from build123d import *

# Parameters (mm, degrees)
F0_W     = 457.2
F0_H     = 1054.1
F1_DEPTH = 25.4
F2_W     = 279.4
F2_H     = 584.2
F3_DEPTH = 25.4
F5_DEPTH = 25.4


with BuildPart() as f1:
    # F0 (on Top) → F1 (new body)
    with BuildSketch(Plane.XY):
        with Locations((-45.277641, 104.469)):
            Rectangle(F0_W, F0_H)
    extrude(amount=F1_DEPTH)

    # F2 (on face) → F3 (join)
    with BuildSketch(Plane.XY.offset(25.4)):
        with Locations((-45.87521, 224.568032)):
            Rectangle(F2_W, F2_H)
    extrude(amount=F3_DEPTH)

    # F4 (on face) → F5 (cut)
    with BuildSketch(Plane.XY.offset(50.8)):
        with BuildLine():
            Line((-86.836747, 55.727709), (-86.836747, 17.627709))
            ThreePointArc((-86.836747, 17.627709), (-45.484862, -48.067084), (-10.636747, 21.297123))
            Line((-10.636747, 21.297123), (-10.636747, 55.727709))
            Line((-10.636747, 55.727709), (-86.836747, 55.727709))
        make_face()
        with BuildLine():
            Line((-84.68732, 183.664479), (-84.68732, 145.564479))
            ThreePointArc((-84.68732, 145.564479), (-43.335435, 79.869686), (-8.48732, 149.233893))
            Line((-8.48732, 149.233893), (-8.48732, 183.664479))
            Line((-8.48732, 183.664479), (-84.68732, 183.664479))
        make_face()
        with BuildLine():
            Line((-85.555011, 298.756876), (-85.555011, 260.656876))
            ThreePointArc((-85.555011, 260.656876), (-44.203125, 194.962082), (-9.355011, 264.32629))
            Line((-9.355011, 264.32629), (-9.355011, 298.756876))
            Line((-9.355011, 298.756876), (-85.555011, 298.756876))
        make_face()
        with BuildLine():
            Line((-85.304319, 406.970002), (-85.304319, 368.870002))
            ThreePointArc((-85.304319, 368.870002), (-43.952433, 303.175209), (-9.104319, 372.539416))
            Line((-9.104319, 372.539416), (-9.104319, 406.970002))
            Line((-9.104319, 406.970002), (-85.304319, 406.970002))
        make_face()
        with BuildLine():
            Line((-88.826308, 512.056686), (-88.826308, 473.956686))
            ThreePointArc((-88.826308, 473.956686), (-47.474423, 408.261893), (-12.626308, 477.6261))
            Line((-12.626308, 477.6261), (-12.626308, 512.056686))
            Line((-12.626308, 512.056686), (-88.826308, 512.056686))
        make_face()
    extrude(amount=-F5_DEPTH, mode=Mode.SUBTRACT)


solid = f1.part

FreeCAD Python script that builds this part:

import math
import FreeCAD as App
import Part
import Sketcher
Q = App.Units.Quantity


def add_polygon(sketch, points):
    """Adds a closed chain of lines whose ends are joined by coincident constraints."""
    first, n = sketch.GeometryCount, len(points)
    for a, b in zip(points, points[1:] + points[:1]):
        sketch.addGeometry(Part.LineSegment(App.Vector(*a, 0), App.Vector(*b, 0)), False)
    for i in range(n):
        sketch.addConstraint(Sketcher.Constraint("Coincident", first + i, 2, first + (i + 1) % n, 1))

doc = App.newDocument("Part")
body = doc.addObject("PartDesign::Body", "Body")

sketch1 = body.newObject("Sketcher::SketchObject", "Sketch")
sketch1.AttachmentSupport = (doc.getObject("XY_Plane"), [""])
sketch1.MapMode = "FlatFace"
add_polygon(sketch1, [(-274, 632), (-274, -423), (183, -423), (183, 632)])
sketch1.addConstraint([
    Sketcher.Constraint("Vertical", 0),
    Sketcher.Constraint("Horizontal", 1),
    Sketcher.Constraint("Vertical", 2),
    Sketcher.Constraint("Horizontal", 3),
    Sketcher.Constraint("DistanceX", 1, 1, 1, 2, Q("18 in")),
    Sketcher.Constraint("DistanceY", 0, 2, 0, 1, Q("41.5 in")),
    Sketcher.Constraint("DistanceY", 0, 2, -1, 1, Q("422.581 mm")),
    Sketcher.Constraint("DistanceX", 0, 2, -1, 1, Q("273.877641 mm")),
])
pad1 = body.newObject("PartDesign::Pad", "Pad")
pad1.Profile = sketch1
pad1.Length = Q("1 in")

sketch2 = body.newObject("Sketcher::SketchObject", "Sketch001")
sketch2.AttachmentSupport = (doc.getObject("XY_Plane"), [""])
sketch2.MapMode = "FlatFace"
sketch2.AttachmentOffset = App.Placement(App.Vector(0, 0, 1 * 25.4), App.Rotation())
add_polygon(sketch2, [(-186, 517), (-186, -68), (94, -68), (94, 517)])
sketch2.addConstraint([
    Sketcher.Constraint("Vertical", 0),
    Sketcher.Constraint("Horizontal", 1),
    Sketcher.Constraint("Vertical", 2),
    Sketcher.Constraint("Horizontal", 3),
    Sketcher.Constraint("DistanceX", 1, 1, 1, 2, Q("11 in")),
    Sketcher.Constraint("DistanceY", 0, 2, 0, 1, Q("23 in")),
    Sketcher.Constraint("DistanceX", 0, 2, -1, 1, Q("185.57521 mm")),
    Sketcher.Constraint("DistanceY", 0, 2, -1, 1, Q("67.531968 mm")),
])
pad2 = body.newObject("PartDesign::Pad", "Pad001")
pad2.Profile = sketch2
pad2.Length = Q("1 in")

sketch3 = body.newObject("Sketcher::SketchObject", "Sketch002")
sketch3.AttachmentSupport = (doc.getObject("XY_Plane"), [""])
sketch3.MapMode = "FlatFace"
sketch3.AttachmentOffset = App.Placement(App.Vector(0, 0, 2 * 25.4), App.Rotation())
sketch3.addGeometry([
    Part.LineSegment(App.Vector(-87, 56, 0), App.Vector(-87, 18, 0)),
    Part.ArcOfCircle(Part.Circle(App.Vector(-48, -4, 0), App.Vector(0, 0, 1), 45), math.radians(152), math.radians(394)),
    Part.LineSegment(App.Vector(-11, 21, 0), App.Vector(-11, 56, 0)),
    Part.LineSegment(App.Vector(-11, 56, 0), App.Vector(-87, 56, 0)),
    Part.LineSegment(App.Vector(-85, 184, 0), App.Vector(-85, 146, 0)),
    Part.ArcOfCircle(Part.Circle(App.Vector(-45, 124, 0), App.Vector(0, 0, 1), 45), math.radians(152), math.radians(394)),
    Part.LineSegment(App.Vector(-8, 149, 0), App.Vector(-8, 184, 0)),
    Part.LineSegment(App.Vector(-8, 184, 0), App.Vector(-85, 184, 0)),
    Part.LineSegment(App.Vector(-86, 299, 0), App.Vector(-86, 261, 0)),
    Part.ArcOfCircle(Part.Circle(App.Vector(-46, 239, 0), App.Vector(0, 0, 1), 45), math.radians(152), math.radians(394)),
    Part.LineSegment(App.Vector(-9, 264, 0), App.Vector(-9, 299, 0)),
    Part.LineSegment(App.Vector(-9, 299, 0), App.Vector(-86, 299, 0)),
    Part.LineSegment(App.Vector(-85, 407, 0), App.Vector(-85, 369, 0)),
    Part.ArcOfCircle(Part.Circle(App.Vector(-46, 348, 0), App.Vector(0, 0, 1), 45), math.radians(152), math.radians(394)),
    Part.LineSegment(App.Vector(-9, 373, 0), App.Vector(-9, 407, 0)),
    Part.LineSegment(App.Vector(-9, 407, 0), App.Vector(-85, 407, 0)),
    Part.LineSegment(App.Vector(-89, 512, 0), App.Vector(-89, 474, 0)),
    Part.ArcOfCircle(Part.Circle(App.Vector(-50, 453, 0), App.Vector(0, 0, 1), 45), math.radians(152), math.radians(394)),
    Part.LineSegment(App.Vector(-13, 478, 0), App.Vector(-13, 512, 0)),
    Part.LineSegment(App.Vector(-13, 512, 0), App.Vector(-89, 512, 0)),
], False)
sketch3.addConstraint([
    Sketcher.Constraint("Coincident", 0, 2, 1, 1),
    Sketcher.Constraint("Coincident", 1, 2, 2, 1),
    Sketcher.Constraint("Coincident", 2, 2, 3, 1),
    Sketcher.Constraint("Coincident", 3, 2, 0, 1),
    Sketcher.Constraint("Coincident", 4, 2, 5, 1),
    Sketcher.Constraint("Coincident", 5, 2, 6, 1),
    Sketcher.Constraint("Coincident", 6, 2, 7, 1),
    Sketcher.Constraint("Coincident", 7, 2, 4, 1),
    Sketcher.Constraint("Coincident", 8, 2, 9, 1),
    Sketcher.Constraint("Coincident", 9, 2, 10, 1),
    Sketcher.Constraint("Coincident", 10, 2, 11, 1),
    Sketcher.Constraint("Coincident", 11, 2, 8, 1),
    Sketcher.Constraint("Coincident", 12, 2, 13, 1),
    Sketcher.Constraint("Coincident", 13, 2, 14, 1),
    Sketcher.Constraint("Coincident", 14, 2, 15, 1),
    Sketcher.Constraint("Coincident", 15, 2, 12, 1),
    Sketcher.Constraint("Coincident", 16, 2, 17, 1),
    Sketcher.Constraint("Coincident", 17, 2, 18, 1),
    Sketcher.Constraint("Coincident", 18, 2, 19, 1),
    Sketcher.Constraint("Coincident", 19, 2, 16, 1),
    Sketcher.Constraint("Vertical", 0),
    Sketcher.Constraint("Vertical", 2),
    Sketcher.Constraint("Horizontal", 3),
    Sketcher.Constraint("Vertical", 4),
    Sketcher.Constraint("Vertical", 6),
    Sketcher.Constraint("Horizontal", 7),
    Sketcher.Constraint("Vertical", 8),
    Sketcher.Constraint("Vertical", 10),
    Sketcher.Constraint("Horizontal", 11),
    Sketcher.Constraint("Vertical", 12),
    Sketcher.Constraint("Vertical", 14),
    Sketcher.Constraint("Horizontal", 15),
    Sketcher.Constraint("Vertical", 16),
    Sketcher.Constraint("Vertical", 18),
    Sketcher.Constraint("Horizontal", 19),
    Sketcher.Constraint("Equal", 1, 5),
    Sketcher.Constraint("Equal", 5, 9),
    Sketcher.Constraint("Equal", 9, 13),
    Sketcher.Constraint("Equal", 13, 17),
    Sketcher.Constraint("Equal", 3, 7),
    Sketcher.Constraint("Equal", 7, 11),
    Sketcher.Constraint("Equal", 11, 15),
    Sketcher.Constraint("Equal", 15, 19),
    Sketcher.Constraint("Equal", 0, 4),
    Sketcher.Constraint("Equal", 2, 6),
    Sketcher.Constraint("Equal", 4, 8),
    Sketcher.Constraint("Equal", 6, 10),
    Sketcher.Constraint("Equal", 8, 12),
    Sketcher.Constraint("Equal", 10, 14),
    Sketcher.Constraint("Equal", 12, 16),
    Sketcher.Constraint("Equal", 14, 18),
    Sketcher.Constraint("DistanceX", 3, 2, 3, 1, Q("3 in")),
    Sketcher.Constraint("DistanceY", 0, 2, 0, 1, Q("1.5 in")),
    Sketcher.Constraint("Radius", 1, Q("1.7545 in")),
    Sketcher.Constraint("DistanceY", -1, 1, 9, 3, Q("239.474802 mm")),
    Sketcher.Constraint("DistanceY", -1, 1, 12, 2, Q("368.870002 mm")),
    Sketcher.Constraint("DistanceY", -1, 1, 17, 2, Q("477.6261 mm")),
    Sketcher.Constraint("DistanceX", 13, 3, 5, 3, Q("0.616999 mm")),
    Sketcher.Constraint("DistanceX", 0, 2, 5, 3, Q("41.357801 mm")),
    Sketcher.Constraint("DistanceY", 2, 1, 2, 2, Q("34.430586 mm")),
    Sketcher.Constraint("DistanceY", -1, 1, 0, 2, Q("17.627709 mm")),
    Sketcher.Constraint("DistanceX", 4, 2, -1, 1, Q("84.68732 mm")),
    Sketcher.Constraint("DistanceY", -1, 1, 4, 2, Q("145.564479 mm")),
    Sketcher.Constraint("DistanceX", 8, 2, -1, 1, Q("85.555011 mm")),
    Sketcher.Constraint("DistanceX", 17, 3, 13, 3, Q("3.521989 mm")),
])
pocket1 = body.newObject("PartDesign::Pocket", "Pocket")
pocket1.Profile = sketch3
pocket1.Length = Q("1 in")

doc.recompute()
